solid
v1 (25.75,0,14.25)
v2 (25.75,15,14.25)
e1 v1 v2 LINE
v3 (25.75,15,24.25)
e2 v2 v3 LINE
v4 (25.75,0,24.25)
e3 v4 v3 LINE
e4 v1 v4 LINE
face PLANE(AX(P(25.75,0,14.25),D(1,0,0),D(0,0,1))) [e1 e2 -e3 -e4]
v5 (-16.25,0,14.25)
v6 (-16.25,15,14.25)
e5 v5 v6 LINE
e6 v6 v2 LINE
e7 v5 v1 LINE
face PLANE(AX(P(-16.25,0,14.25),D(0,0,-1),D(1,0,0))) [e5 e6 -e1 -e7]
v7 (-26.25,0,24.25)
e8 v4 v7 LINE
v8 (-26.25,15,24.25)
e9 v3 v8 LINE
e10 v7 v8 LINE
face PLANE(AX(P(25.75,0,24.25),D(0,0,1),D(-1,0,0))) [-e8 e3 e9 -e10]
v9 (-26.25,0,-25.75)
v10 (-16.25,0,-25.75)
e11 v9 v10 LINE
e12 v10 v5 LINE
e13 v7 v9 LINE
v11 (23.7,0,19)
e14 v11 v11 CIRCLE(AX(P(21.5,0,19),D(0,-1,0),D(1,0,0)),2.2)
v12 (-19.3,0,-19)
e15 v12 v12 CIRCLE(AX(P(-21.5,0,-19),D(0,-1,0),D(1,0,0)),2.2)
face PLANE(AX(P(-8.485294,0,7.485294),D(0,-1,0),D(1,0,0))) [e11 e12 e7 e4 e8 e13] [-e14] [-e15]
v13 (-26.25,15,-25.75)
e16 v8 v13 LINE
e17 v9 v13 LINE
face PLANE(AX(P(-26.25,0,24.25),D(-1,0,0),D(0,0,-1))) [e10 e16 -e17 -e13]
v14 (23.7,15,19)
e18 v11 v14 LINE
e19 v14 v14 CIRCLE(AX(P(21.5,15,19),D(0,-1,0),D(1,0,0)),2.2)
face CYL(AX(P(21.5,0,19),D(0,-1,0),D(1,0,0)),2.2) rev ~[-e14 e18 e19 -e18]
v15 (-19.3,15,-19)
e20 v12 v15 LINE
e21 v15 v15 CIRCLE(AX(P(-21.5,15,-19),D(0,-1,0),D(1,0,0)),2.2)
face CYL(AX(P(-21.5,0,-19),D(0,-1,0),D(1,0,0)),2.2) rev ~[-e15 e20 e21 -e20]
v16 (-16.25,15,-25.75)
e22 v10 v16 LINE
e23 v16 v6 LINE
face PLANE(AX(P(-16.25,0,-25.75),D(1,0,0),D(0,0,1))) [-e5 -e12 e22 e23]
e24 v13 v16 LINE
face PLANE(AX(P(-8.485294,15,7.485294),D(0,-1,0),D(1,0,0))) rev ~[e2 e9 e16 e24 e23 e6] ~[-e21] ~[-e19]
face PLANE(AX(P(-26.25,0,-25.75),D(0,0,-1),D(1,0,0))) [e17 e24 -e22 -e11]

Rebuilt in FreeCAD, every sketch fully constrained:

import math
import FreeCAD as App
import Part
import Sketcher
from FreeCAD import Vector
Q = App.Units.Quantity


def add_polygon(sketch, points):
    """Adds a closed chain of lines whose ends are joined by coincident constraints."""
    first, n = sketch.GeometryCount, len(points)
    for a, b in zip(points, points[1:] + points[:1]):
        sketch.addGeometry(Part.LineSegment(App.Vector(*a, 0), App.Vector(*b, 0)), False)
    for i in range(n):
        sketch.addConstraint(Sketcher.Constraint("Coincident", first + i, 2, first + (i + 1) % n, 1))

doc = App.newDocument("Part")
params = doc.addObject("Spreadsheet::Sheet", "Params")
for row, (alias, value) in enumerate([
    ("sketch1_radius", "3 mm"),
    ("sketch1_diameter", "4.4 mm"),
    ("sketch1_radius2", "25.75 mm"),
    ("sketch1_height", "25.75 mm"),
    ("pad1_length", "15 mm"),
    ("sketch2_diameter", "4.4 mm"),
    ("sketch2_width", "52 mm"),
    ("sketch2_width2", "10 mm"),
    ("sketch2_height", "50 mm"),
    ("pad2_length", "15 mm"),
], start=1):
    params.set(f"A{row}", alias)
    params.set(f"B{row}", "=" + value)
    params.setAlias(f"B{row}", alias)

body = doc.addObject("PartDesign::Body", "Body")

# Sketch on XZ plane
sketch1 = body.newObject("Sketcher::SketchObject", "Sketch")
sketch1.AttachmentSupport = (doc.getObject("XZ_Plane"), [""])
sketch1.MapMode = "FlatFace"
sketch1.addGeometry(Part.LineSegment(Vector(8.6, -25.8, 0), Vector(25.8, -25.8, 0)), False)
sketch1.addGeometry(Part.LineSegment(Vector(25.8, -25.8, 0), Vector(25.8, 0, 0)), False)
sketch1.addGeometry(Part.ArcOfCircle(Part.Circle(Vector(0, 0, 0), Vector(0, 0, 1), 25.8), math.radians(0), math.radians(35)), False)
sketch1.addGeometry(Part.LineSegment(Vector(21.2, 14.7, 0), Vector(23.5, 16.8, 0)), False)
sketch1.addGeometry(Part.ArcOfCircle(Part.Circle(Vector(21.5, 19, 0), Vector(0, 0, 1), 3), math.radians(-49), math.radians(131)), False)
sketch1.addGeometry(Part.LineSegment(Vector(19.5, 21.2, 0), Vector(17.2, 19.2, 0)), False)
sketch1.addGeometry(Part.ArcOfCircle(Part.Circle(Vector(0, 0, 0), Vector(0, 0, 1), 25.7), math.radians(48), math.radians(180)), False)
sketch1.addGeometry(Part.ArcOfCircle(Part.Circle(Vector(-0.7, 0, 0), Vector(0, 0, 1), 25), math.radians(-180), math.radians(-144)), False)
sketch1.addGeometry(Part.LineSegment(Vector(-21, -14.6, 0), Vector(-23.5, -16.8, 0)), False)
sketch1.addGeometry(Part.ArcOfCircle(Part.Circle(Vector(-21.5, -19, 0), Vector(0, 0, 1), 3), math.radians(131), math.radians(311)), False)
sketch1.addGeometry(Part.LineSegment(Vector(-19.5, -21.2, 0), Vector(-17, -19, 0)), False)
sketch1.addGeometry(Part.ArcOfCircle(Part.Circle(Vector(-0.7, 0, 0), Vector(0, 0, 1), 25), math.radians(-130), math.radians(-68)), False)
sketch1.addGeometry(Part.LineSegment(Vector(8.6, -23.2, 0), Vector(8.6, -25.8, 0)), False)
sketch1.addGeometry(Part.Circle(Vector(-21.5, -19, 0), Vector(0, 0, 1), 2.2), False)
sketch1.addGeometry(Part.Circle(Vector(21.5, 19, 0), Vector(0, 0, 1), 2.2), False)
sketch1.addConstraint(Sketcher.Constraint("Coincident", 0, 2, 1, 1))
sketch1.addConstraint(Sketcher.Constraint("Tangent", 1, 2, 2, 1))
sketch1.addConstraint(Sketcher.Constraint("Coincident", 2, 2, 3, 1))
sketch1.addConstraint(Sketcher.Constraint("Tangent", 3, 2, 4, 1))
sketch1.addConstraint(Sketcher.Constraint("Tangent", 4, 2, 5, 1))
sketch1.addConstraint(Sketcher.Constraint("Coincident", 5, 2, 6, 1))
sketch1.addConstraint(Sketcher.Constraint("Tangent", 6, 2, 7, 1))
sketch1.addConstraint(Sketcher.Constraint("Coincident", 7, 2, 8, 1))
sketch1.addConstraint(Sketcher.Constraint("Tangent", 8, 2, 9, 1))
sketch1.addConstraint(Sketcher.Constraint("Tangent", 9, 2, 10, 1))
sketch1.addConstraint(Sketcher.Constraint("Coincident", 10, 2, 11, 1))
sketch1.addConstraint(Sketcher.Constraint("Coincident", 11, 2, 12, 1))
sketch1.addConstraint(Sketcher.Constraint("Coincident", 12, 2, 0, 1))
sketch1.addConstraint(Sketcher.Constraint("Horizontal", 0))
sketch1.addConstraint(Sketcher.Constraint("Vertical", 1))
sketch1.addConstraint(Sketcher.Constraint("Vertical", 12))
sketch1.addConstraint(Sketcher.Constraint("Coincident", 2, 3, -1, 1))
sketch1.addConstraint(Sketcher.Constraint("Coincident", 6, 3, -1, 1))
sketch1.addConstraint(Sketcher.Constraint("Coincident", 11, 3, 7, 3))
sketch1.addConstraint(Sketcher.Constraint("Coincident", 13, 3, 9, 3))
sketch1.addConstraint(Sketcher.Constraint("Coincident", 14, 3, 4, 3))
sketch1.addConstraint(Sketcher.Constraint("Equal", 4, 9))
sketch1.addConstraint(Sketcher.Constraint("Equal", 13, 14))
sketch1.addConstraint(Sketcher.Constraint("Symmetric", 4, 3, 9, 3, -1, 1))
sketch1.addConstraint(Sketcher.Constraint("Symmetric", 1, 2, 6, 2, -1, 1))
sketch1.addConstraint(Sketcher.Constraint("Parallel", 3, 5))
sketch1.addConstraint(Sketcher.Constraint("Parallel", 5, 8))
sketch1.addConstraint(Sketcher.Constraint("Parallel", 8, 10))
sketch1.addConstraint(Sketcher.Constraint("Equal", 3, 5))
sketch1.addConstraint(Sketcher.Constraint("Radius", 4, Q("3 mm")))
sketch1.addConstraint(Sketcher.Constraint("Diameter", 13, Q("4.4 mm")))
sketch1.addConstraint(Sketcher.Constraint("Radius", 6, Q("25.75 mm")))
sketch1.addConstraint(Sketcher.Constraint("DistanceY", -1, 1, 4, 3, Q("19 mm")))
sketch1.addConstraint(Sketcher.Constraint("DistanceX", 9, 3, 4, 3, Q("43 mm")))
sketch1.addConstraint(Sketcher.Constraint("DistanceX", 6, 2, 11, 3, Q("25.000001 mm")))
sketch1.addConstraint(Sketcher.Constraint("DistanceY", 1, 1, 1, 2, Q("25.75 mm")))
sketch1.addConstraint(Sketcher.Constraint("Radius", 11, Q("25.000004 mm")))
sketch1.addConstraint(Sketcher.Constraint("DistanceX", 0, 1, 0, 2, Q("17.157036 mm")))
sketch1.setExpression("Constraints[29]", "Params.sketch1_radius")
sketch1.setExpression("Constraints[30]", "Params.sketch1_diameter")
sketch1.setExpression("Constraints[31]", "Params.sketch1_radius2")
sketch1.setExpression("Constraints[35]", "Params.sketch1_height")
pad1 = body.newObject("PartDesign::Pad", "Pad")
pad1.Profile = sketch1
pad1.setExpression("Length", "Params.pad1_length")
body2 = doc.addObject("PartDesign::Body", "Body001")

# Sketch on XZ plane
sketch2 = body2.newObject("Sketcher::SketchObject", "Sketch001")
sketch2.AttachmentSupport = (doc.getObject("XZ_Plane001"), [""])
sketch2.MapMode = "FlatFace"
add_polygon(sketch2, [(25.8, 14.2), (25.8, 24.2), (-26.2, 24.2), (-26.2, -25.8), (-16.2, -25.8), (-16.2, 14.2)])  # lines 0-5
sketch2.addGeometry(Part.Circle(Vector(-21.5, -19, 0), Vector(0, 0, 1), 2.2), False)  # 6
sketch2.addGeometry(Part.Circle(Vector(21.5, 19, 0), Vector(0, 0, 1), 2.2), False)  # 7
sketch2.addConstraint(Sketcher.Constraint("Vertical", 0))
sketch2.addConstraint(Sketcher.Constraint("Horizontal", 1))
sketch2.addConstraint(Sketcher.Constraint("Vertical", 2))
sketch2.addConstraint(Sketcher.Constraint("Horizontal", 3))
sketch2.addConstraint(Sketcher.Constraint("Vertical", 4))
sketch2.addConstraint(Sketcher.Constraint("Horizontal", 5))
sketch2.addConstraint(Sketcher.Constraint("Equal", 6, 7))
sketch2.addConstraint(Sketcher.Constraint("Symmetric", 6, 3, 7, 3, -1, 1))
sketch2.addConstraint(Sketcher.Constraint("Equal", 3, 0))
sketch2.addConstraint(Sketcher.Constraint("Diameter", 6, Q("4.4 mm")))
sketch2.addConstraint(Sketcher.Constraint("DistanceX", 1, 2, 1, 1, Q("52 mm")))
sketch2.addConstraint(Sketcher.Constraint("DistanceX", 3, 1, 3, 2, Q("10 mm")))
sketch2.addConstraint(Sketcher.Constraint("DistanceY", 2, 2, 2, 1, Q("50 mm")))
sketch2.addConstraint(Sketcher.Constraint("DistanceY", 6, 3, -1, 1, Q("19 mm")))
sketch2.addConstraint(Sketcher.Constraint("DistanceX", 6, 3, 7, 3, Q("43 mm")))
sketch2.addConstraint(Sketcher.Constraint("DistanceX", -1, 1, 0, 2, Q("25.75 mm")))
sketch2.addConstraint(Sketcher.Constraint("DistanceY", -1, 1, 0, 2, Q("24.25 mm")))
sketch2.setExpression("Constraints[15]", "Params.sketch2_diameter")
sketch2.setExpression("Constraints[16]", "Params.sketch2_width")
sketch2.setExpression("Constraints[17]", "Params.sketch2_width2")
sketch2.setExpression("Constraints[18]", "Params.sketch2_height")
pad2 = body2.newObject("PartDesign::Pad", "Pad001")
pad2.Profile = sketch2
pad2.setExpression("Length", "Params.pad2_length")
pad2.Reversed = True
body.Visibility = False

doc.recompute()
